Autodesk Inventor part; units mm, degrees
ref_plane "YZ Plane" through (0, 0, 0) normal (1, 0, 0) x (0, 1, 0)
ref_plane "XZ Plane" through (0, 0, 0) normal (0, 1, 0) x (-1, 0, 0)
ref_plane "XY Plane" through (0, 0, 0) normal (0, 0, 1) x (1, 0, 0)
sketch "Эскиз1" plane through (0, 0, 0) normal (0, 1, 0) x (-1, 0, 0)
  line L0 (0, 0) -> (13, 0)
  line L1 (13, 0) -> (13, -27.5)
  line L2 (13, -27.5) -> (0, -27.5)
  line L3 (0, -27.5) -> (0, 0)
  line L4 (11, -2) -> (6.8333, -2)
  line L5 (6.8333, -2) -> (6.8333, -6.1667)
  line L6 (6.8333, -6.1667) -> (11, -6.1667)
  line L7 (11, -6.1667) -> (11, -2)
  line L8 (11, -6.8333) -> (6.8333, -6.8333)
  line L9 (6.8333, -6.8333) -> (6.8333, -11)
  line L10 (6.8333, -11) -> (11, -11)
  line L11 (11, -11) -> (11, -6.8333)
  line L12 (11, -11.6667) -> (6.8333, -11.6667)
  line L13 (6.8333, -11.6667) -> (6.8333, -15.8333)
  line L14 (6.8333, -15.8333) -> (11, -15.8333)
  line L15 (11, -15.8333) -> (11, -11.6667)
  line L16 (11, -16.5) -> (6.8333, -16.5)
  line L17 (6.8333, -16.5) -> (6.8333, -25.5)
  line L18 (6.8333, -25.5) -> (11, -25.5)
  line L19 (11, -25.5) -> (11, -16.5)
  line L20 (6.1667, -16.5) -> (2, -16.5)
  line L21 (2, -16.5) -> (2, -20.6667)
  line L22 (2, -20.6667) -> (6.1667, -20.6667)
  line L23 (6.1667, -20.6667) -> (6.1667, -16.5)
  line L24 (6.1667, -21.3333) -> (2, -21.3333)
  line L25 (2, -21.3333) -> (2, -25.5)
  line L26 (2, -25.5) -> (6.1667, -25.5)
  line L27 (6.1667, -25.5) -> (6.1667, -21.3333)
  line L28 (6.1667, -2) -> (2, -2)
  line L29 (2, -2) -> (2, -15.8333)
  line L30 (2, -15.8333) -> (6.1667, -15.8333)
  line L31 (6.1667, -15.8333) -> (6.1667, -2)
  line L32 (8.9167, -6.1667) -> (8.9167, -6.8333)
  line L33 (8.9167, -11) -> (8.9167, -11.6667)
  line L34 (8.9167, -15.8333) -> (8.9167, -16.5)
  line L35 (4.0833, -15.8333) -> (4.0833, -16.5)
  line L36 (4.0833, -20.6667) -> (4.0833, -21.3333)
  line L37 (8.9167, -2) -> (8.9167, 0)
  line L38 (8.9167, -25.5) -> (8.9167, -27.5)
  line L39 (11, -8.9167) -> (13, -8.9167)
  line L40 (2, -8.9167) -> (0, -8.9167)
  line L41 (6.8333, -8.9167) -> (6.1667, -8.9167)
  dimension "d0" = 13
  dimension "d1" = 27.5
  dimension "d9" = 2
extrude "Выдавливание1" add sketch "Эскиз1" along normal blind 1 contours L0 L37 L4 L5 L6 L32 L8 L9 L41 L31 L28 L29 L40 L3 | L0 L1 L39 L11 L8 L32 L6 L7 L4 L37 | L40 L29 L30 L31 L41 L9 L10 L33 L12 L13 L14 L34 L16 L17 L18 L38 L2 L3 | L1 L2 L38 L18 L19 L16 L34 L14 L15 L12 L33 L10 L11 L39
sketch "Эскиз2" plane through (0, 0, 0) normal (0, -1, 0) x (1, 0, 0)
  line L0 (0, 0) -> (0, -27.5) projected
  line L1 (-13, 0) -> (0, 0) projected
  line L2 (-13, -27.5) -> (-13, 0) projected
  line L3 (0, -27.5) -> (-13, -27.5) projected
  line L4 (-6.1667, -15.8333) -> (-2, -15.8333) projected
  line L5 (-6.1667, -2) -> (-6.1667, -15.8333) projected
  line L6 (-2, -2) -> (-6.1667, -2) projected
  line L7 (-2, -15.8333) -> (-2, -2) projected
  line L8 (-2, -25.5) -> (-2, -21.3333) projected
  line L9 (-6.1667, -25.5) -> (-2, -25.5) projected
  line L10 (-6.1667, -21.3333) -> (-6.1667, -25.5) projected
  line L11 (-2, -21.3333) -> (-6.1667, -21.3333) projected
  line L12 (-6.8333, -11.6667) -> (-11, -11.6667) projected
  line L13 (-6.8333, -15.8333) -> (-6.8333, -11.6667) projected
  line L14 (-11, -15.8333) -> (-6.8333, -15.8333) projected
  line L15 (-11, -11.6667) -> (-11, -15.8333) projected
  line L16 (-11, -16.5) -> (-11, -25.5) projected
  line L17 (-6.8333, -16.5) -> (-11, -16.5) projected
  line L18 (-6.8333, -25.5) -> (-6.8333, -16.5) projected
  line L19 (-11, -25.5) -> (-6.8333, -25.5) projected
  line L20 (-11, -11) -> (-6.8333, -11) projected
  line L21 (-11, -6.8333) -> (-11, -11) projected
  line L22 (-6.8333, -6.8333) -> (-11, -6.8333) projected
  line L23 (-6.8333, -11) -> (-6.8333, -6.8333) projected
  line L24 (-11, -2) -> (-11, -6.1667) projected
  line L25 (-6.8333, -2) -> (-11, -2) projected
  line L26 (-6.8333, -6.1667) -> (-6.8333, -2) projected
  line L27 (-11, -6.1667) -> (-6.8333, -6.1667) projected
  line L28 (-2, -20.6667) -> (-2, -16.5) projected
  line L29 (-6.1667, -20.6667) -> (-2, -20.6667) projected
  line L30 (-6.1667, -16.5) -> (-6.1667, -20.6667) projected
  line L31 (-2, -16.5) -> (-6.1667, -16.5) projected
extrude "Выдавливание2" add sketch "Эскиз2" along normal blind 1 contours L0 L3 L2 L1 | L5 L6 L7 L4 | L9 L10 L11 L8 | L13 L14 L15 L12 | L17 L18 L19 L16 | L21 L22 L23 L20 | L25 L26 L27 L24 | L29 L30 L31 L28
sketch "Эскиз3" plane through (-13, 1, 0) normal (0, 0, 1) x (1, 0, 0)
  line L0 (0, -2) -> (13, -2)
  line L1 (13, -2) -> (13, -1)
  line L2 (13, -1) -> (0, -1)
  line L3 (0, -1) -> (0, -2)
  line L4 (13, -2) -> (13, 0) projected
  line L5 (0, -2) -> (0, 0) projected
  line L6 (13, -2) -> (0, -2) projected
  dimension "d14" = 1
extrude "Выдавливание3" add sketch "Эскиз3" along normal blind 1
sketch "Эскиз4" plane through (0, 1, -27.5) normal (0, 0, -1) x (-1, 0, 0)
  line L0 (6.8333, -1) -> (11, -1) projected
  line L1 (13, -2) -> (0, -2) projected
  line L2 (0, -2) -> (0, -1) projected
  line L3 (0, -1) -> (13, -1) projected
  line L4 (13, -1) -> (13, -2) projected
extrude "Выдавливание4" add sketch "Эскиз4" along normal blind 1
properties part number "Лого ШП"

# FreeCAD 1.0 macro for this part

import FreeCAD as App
import Part
import Sketcher


def add_polygon(sketch, points):
    """Adds a closed chain of lines whose ends are joined by coincident constraints."""
    first, n = sketch.GeometryCount, len(points)
    for a, b in zip(points, points[1:] + points[:1]):
        sketch.addGeometry(Part.LineSegment(App.Vector(*a, 0), App.Vector(*b, 0)), False)
    for i in range(n):
        sketch.addConstraint(Sketcher.Constraint("Coincident", first + i, 2, first + (i + 1) % n, 1))

doc = App.newDocument("Part")
body = doc.addObject("PartDesign::Body", "Body")

sketch1 = body.newObject("Sketcher::SketchObject", "Sketch")
sketch1.AttachmentSupport = (doc.getObject("XZ_Plane"), [""])
sketch1.MapMode = "FlatFace"
add_polygon(sketch1, [(0, 0), (0, -27.5), (-13, -27.5), (-13, 0)])
add_polygon(sketch1, [(-6.8, -2), (-11, -2), (-11, -6.2), (-6.8, -6.2)])
add_polygon(sketch1, [(-6.8, -6.8), (-11, -6.8), (-11, -11), (-6.8, -11)])
add_polygon(sketch1, [(-6.2, -2), (-6.2, -15.8), (-4.1, -15.8), (-2, -15.8), (-2, -2)])
add_polygon(sketch1, [(-6.8, -11.7), (-11, -11.7), (-11, -15.8), (-6.8, -15.8)])
add_polygon(sketch1, [(-6.8, -16.5), (-11, -16.5), (-11, -25.5), (-6.8, -25.5)])
add_polygon(sketch1, [(-2, -21.3), (-4.1, -21.3), (-6.2, -21.3), (-6.2, -25.5), (-2, -25.5)])
add_polygon(sketch1, [(-2, -16.5), (-4.1, -16.5), (-6.2, -16.5), (-6.2, -20.7), (-4.1, -20.7), (-2, -20.7)])
sketch1.addConstraint([
    Sketcher.Constraint("Vertical", 0),
    Sketcher.Constraint("Horizontal", 1),
    Sketcher.Constraint("Vertical", 2),
    Sketcher.Constraint("Horizontal", 3),
    Sketcher.Constraint("Horizontal", 4),
    Sketcher.Constraint("Vertical", 5),
    Sketcher.Constraint("Horizontal", 6),
    Sketcher.Constraint("Vertical", 7),
    Sketcher.Constraint("Horizontal", 8),
    Sketcher.Constraint("Vertical", 9),
    Sketcher.Constraint("Horizontal", 10),
    Sketcher.Constraint("Vertical", 11),
    Sketcher.Constraint("Vertical", 12),
    Sketcher.Constraint("Horizontal", 13),
    Sketcher.Constraint("Horizontal", 14),
    Sketcher.Constraint("Vertical", 15),
    Sketcher.Constraint("Horizontal", 16),
    Sketcher.Constraint("Horizontal", 17),
    Sketcher.Constraint("Vertical", 18),
    Sketcher.Constraint("Horizontal", 19),
    Sketcher.Constraint("Vertical", 20),
    Sketcher.Constraint("Horizontal", 21),
    Sketcher.Constraint("Vertical", 22),
    Sketcher.Constraint("Horizontal", 23),
    Sketcher.Constraint("Vertical", 24),
    Sketcher.Constraint("Horizontal", 25),
    Sketcher.Constraint("Horizontal", 26),
    Sketcher.Constraint("Vertical", 27),
    Sketcher.Constraint("Horizontal", 28),
    Sketcher.Constraint("Vertical", 29),
    Sketcher.Constraint("Horizontal", 30),
    Sketcher.Constraint("Horizontal", 31),
    Sketcher.Constraint("Vertical", 32),
    Sketcher.Constraint("Horizontal", 33),
    Sketcher.Constraint("Horizontal", 34),
    Sketcher.Constraint("Vertical", 35),
    Sketcher.Constraint("Coincident", 3, 2, -1, 1),
    Sketcher.Constraint("Horizontal", 7, 2, 15, 2),
    Sketcher.Constraint("Horizontal", 14, 2, 18, 2),
    Sketcher.Constraint("Horizontal", 23, 2, 27, 2),
    Sketcher.Constraint("Horizontal", 24, 2, 30, 2),
    Sketcher.Constraint("Vertical", 5, 2, 8, 2),
    Sketcher.Constraint("Vertical", 7, 2, 10, 2),
    Sketcher.Constraint("Vertical", 9, 2, 17, 2),
    Sketcher.Constraint("Vertical", 11, 2, 19, 2),
    Sketcher.Constraint("Vertical", 18, 2, 21, 2),
    Sketcher.Constraint("Vertical", 20, 2, 23, 2),
    Sketcher.Constraint("Vertical", 13, 2, 25, 2),
    Sketcher.Constraint("Vertical", 16, 2, 26, 2),
    Sketcher.Constraint("Vertical", 15, 2, 28, 2),
    Sketcher.Constraint("Vertical", 25, 2, 30, 2),
    Sketcher.Constraint("Vertical", 27, 2, 31, 2),
    Sketcher.Constraint("Vertical", 30, 2, 33, 2),
    Sketcher.Constraint("Vertical", 29, 2, 34, 2),
    Sketcher.Constraint("Equal", 13, 14),
    Sketcher.Constraint("Equal", 10, 16),
    Sketcher.Constraint("Equal", 28, 5),
    Sketcher.Constraint("Equal", 7, 9),
    Sketcher.Constraint("Equal", 11, 18),
    Sketcher.Constraint("Equal", 20, 27),
    Sketcher.Constraint("Equal", 29, 32),
    Sketcher.Constraint("DistanceX", 1, 2, 1, 1, 13.0),
    Sketcher.Constraint("DistanceY", 0, 2, 0, 1, 27.5),
    Sketcher.Constraint("DistanceY", 4, 2, -1, 1, 2.0),
    Sketcher.Constraint("DistanceX", 14, 2, -1, 1, 2.0),
    Sketcher.Constraint("DistanceX", 2, 2, 4, 2, 2.0),
    Sketcher.Constraint("DistanceY", 1, 2, 22, 2, 2.0),
    Sketcher.Constraint("DistanceY", 22, 2, 22, 1, 9.0),
    Sketcher.Constraint("DistanceY", 9, 2, -1, 1, 11.0),
    Sketcher.Constraint("DistanceY", 12, 2, 11, 2, 9.0),
    Sketcher.Constraint("DistanceY", 17, 2, 5, 2, 5.5),
])
pad1 = body.newObject("PartDesign::Pad", "Pad")
pad1.Profile = sketch1
pad1.Length = 1
pad1.Reversed = True

sketch2 = body.newObject("Sketcher::SketchObject", "Sketch001")
sketch2.AttachmentSupport = (doc.getObject("XZ_Plane"), [""])
sketch2.MapMode = "FlatFace"
add_polygon(sketch2, [(0, -28), (0, 0), (-13, 0), (-13, -28)])
sketch2.addConstraint([
    Sketcher.Constraint("Vertical", 0),
    Sketcher.Constraint("Horizontal", 1),
    Sketcher.Constraint("Vertical", 2),
    Sketcher.Constraint("Horizontal", 3),
    Sketcher.Constraint("Coincident", 0, 2, -1, 1),
    Sketcher.Constraint("DistanceX", 1, 2, 1, 1, 13.0),
    Sketcher.Constraint("DistanceY", 0, 1, 0, 2, 27.5),
])
pad2 = body.newObject("PartDesign::Pad", "Pad001")
pad2.Profile = sketch2
pad2.Length = 1

sketch3 = body.newObject("Sketcher::SketchObject", "Sketch002")
sketch3.AttachmentSupport = (doc.getObject("XY_Plane"), [""])
sketch3.MapMode = "FlatFace"
add_polygon(sketch3, [(-13, 0), (-13, -1), (0, -1), (0, 0)])
sketch3.addConstraint([
    Sketcher.Constraint("Vertical", 0),
    Sketcher.Constraint("Horizontal", 1),
    Sketcher.Constraint("Vertical", 2),
    Sketcher.Constraint("Horizontal", 3),
    Sketcher.Constraint("Coincident", 2, 2, -1, 1),
    Sketcher.Constraint("DistanceY", 0, 2, 0, 1, 1.0),
    Sketcher.Constraint("DistanceX", 1, 1, 1, 2, 13.0),
])
pad3 = body.newObject("PartDesign::Pad", "Pad002")
pad3.Profile = sketch3
pad3.Length = 1

sketch4 = body.newObject("Sketcher::SketchObject", "Sketch003")
sketch4.AttachmentSupport = (doc.getObject("XY_Plane"), [""])
sketch4.MapMode = "FlatFace"
sketch4.AttachmentOffset = App.Placement(App.Vector(0, 0, -27.5), App.Rotation())
add_polygon(sketch4, [(-13, 0), (0, 0), (0, -1), (-13, -1)])
sketch4.addConstraint([
    Sketcher.Constraint("Horizontal", 0),
    Sketcher.Constraint("Vertical", 1),
    Sketcher.Constraint("Horizontal", 2),
    Sketcher.Constraint("Vertical", 3),
    Sketcher.Constraint("Coincident", 0, 2, -1, 1),
    Sketcher.Constraint("DistanceX", 0, 1, 0, 2, 13.0),
    Sketcher.Constraint("DistanceY", 1, 2, 1, 1, 1.0),
])
pad4 = body.newObject("PartDesign::Pad", "Pad003")
pad4.Profile = sketch4
pad4.Length = 1
pad4.Reversed = True

doc.recompute()
